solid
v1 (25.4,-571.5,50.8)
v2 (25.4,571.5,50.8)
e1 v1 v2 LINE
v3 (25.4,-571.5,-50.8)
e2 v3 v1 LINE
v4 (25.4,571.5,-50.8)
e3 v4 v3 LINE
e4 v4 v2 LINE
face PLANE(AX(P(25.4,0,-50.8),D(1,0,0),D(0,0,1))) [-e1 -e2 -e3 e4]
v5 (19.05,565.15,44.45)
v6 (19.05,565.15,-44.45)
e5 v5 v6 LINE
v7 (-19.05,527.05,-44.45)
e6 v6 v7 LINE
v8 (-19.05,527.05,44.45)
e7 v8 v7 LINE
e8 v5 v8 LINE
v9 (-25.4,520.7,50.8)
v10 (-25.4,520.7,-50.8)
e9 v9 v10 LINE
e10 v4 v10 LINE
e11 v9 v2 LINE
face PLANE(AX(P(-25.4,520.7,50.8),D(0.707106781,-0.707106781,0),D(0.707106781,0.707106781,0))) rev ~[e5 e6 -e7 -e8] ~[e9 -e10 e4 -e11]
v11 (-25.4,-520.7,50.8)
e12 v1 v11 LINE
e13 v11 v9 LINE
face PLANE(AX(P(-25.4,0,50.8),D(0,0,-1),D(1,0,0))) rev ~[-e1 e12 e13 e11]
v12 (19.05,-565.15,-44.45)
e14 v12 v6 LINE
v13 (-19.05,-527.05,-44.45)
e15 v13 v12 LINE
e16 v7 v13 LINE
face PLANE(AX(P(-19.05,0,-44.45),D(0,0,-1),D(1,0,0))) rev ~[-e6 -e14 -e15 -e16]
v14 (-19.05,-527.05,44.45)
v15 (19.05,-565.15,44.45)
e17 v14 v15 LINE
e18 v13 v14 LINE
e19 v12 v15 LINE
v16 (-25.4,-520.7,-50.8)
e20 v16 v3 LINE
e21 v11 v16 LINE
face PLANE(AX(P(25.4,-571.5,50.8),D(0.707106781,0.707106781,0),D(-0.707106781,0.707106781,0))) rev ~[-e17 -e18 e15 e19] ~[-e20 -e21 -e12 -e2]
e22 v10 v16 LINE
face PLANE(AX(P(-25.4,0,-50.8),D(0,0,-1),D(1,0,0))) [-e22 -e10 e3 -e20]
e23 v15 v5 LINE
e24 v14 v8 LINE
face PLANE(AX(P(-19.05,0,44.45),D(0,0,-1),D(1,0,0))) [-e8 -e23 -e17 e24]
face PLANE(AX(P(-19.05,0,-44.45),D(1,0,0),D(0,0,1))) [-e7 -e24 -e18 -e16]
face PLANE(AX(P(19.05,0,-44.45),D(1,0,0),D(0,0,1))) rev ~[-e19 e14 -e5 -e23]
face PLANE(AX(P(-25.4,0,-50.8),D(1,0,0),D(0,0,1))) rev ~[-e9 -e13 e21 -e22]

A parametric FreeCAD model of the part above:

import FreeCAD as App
import Part
import Sketcher
Q = App.Units.Quantity


def add_polygon(sketch, points):
    """Adds a closed chain of lines whose ends are joined by coincident constraints."""
    first, n = sketch.GeometryCount, len(points)
    for a, b in zip(points, points[1:] + points[:1]):
        sketch.addGeometry(Part.LineSegment(App.Vector(*a, 0), App.Vector(*b, 0)), False)
    for i in range(n):
        sketch.addConstraint(Sketcher.Constraint("Coincident", first + i, 2, first + (i + 1) % n, 1))

doc = App.newDocument("Part")
params = doc.addObject("Spreadsheet::Sheet", "Params")
for row, (alias, value) in enumerate([
    ("sketch1_width", "2 in"),
    ("sketch1_height", "4 in"),
    ("sketch1_width2", "1.5 in"),
    ("sketch1_height2", "3.5 in"),
    ("pad1_length", "45 in"),
    ("sketch2_width", "2 in"),
], start=1):
    params.set(f"A{row}", alias)
    params.set(f"B{row}", "=" + value)
    params.setAlias(f"B{row}", alias)

body = doc.addObject("PartDesign::Body", "Body")

sketch1 = doc.addObject("Sketcher::SketchObject", "Sketch")
body.addObject(sketch1)
sketch1.AttachmentSupport = (doc.XZ_Plane, [""])
sketch1.MapMode = "FlatFace"
add_polygon(sketch1, [(-25.4, 50.8), (-25.4, -50.8), (25.4, -50.8), (25.4, 50.8)])
add_polygon(sketch1, [(19.05, -44.45), (-19.05, -44.45), (-19.05, 44.45), (19.05, 44.45)])
sketch1.addConstraint([
    Sketcher.Constraint("Vertical", 0),
    Sketcher.Constraint("Horizontal", 1),
    Sketcher.Constraint("Vertical", 2),
    Sketcher.Constraint("Horizontal", 3),
    Sketcher.Constraint("Horizontal", 4),
    Sketcher.Constraint("Vertical", 5),
    Sketcher.Constraint("Horizontal", 6),
    Sketcher.Constraint("Vertical", 7),
    Sketcher.Constraint("Symmetric", 0, 2, 2, 2, -1, 1),
    Sketcher.Constraint("Symmetric", 4, 2, 6, 2, -1, 1),
    Sketcher.Constraint("DistanceX", 1, 1, 1, 2, Q("2 in")),
    Sketcher.Constraint("DistanceY", 0, 2, 0, 1, Q("4 in")),
    Sketcher.Constraint("DistanceX", 4, 2, 4, 1, Q("1.5 in")),
    Sketcher.Constraint("DistanceY", 5, 1, 5, 2, Q("3.5 in")),
])
sketch1.setExpression("Constraints[18]", "Params.sketch1_width")
sketch1.setExpression("Constraints[19]", "Params.sketch1_height")
sketch1.setExpression("Constraints[20]", "Params.sketch1_width2")
sketch1.setExpression("Constraints[21]", "Params.sketch1_height2")
pad1 = doc.addObject("PartDesign::Pad", "Pad")
body.addObject(pad1)
pad1.Profile = sketch1
pad1.setExpression("Length", "Params.pad1_length")
pad1.Midplane = True

sketch2 = doc.addObject("Sketcher::SketchObject", "Sketch001")
body.addObject(sketch2)
sketch2.AttachmentSupport = (doc.XY_Plane, [""])
sketch2.MapMode = "FlatFace"
sketch2.AttachmentOffset = App.Placement(App.Vector(0, 0, 2 * 25.4), App.Rotation())
add_polygon(sketch2, [(-25.4, -571.5), (25.4, -571.5), (-25.4, -520.7)])
add_polygon(sketch2, [(25.4, 571.5), (-25.4, 571.5), (-25.4, 520.7)])
sketch2.addConstraint([
    Sketcher.Constraint("Horizontal", 0),
    Sketcher.Constraint("Vertical", 2),
    Sketcher.Constraint("Horizontal", 3),
    Sketcher.Constraint("Vertical", 4),
    Sketcher.Constraint("Symmetric", 0, 2, 3, 2, -1, 1),
    Sketcher.Constraint("Symmetric", 1, 2, 4, 2, -1),
    Sketcher.Constraint("Perpendicular", 1, 5),
    Sketcher.Constraint("Vertical", 0, 2, 5, 2),
    Sketcher.Constraint("DistanceX", 0, 1, 0, 2, Q("2 in")),
    Sketcher.Constraint("DistanceY", 1, 2, 3, 2, Q("43 in")),
])
sketch2.setExpression("Constraints[14]", "Params.sketch2_width")
pocket1 = doc.addObject("PartDesign::Pocket", "Pocket")
body.addObject(pocket1)
pocket1.Profile = sketch2
pocket1.Type = "ThroughAll"

doc.recompute()
